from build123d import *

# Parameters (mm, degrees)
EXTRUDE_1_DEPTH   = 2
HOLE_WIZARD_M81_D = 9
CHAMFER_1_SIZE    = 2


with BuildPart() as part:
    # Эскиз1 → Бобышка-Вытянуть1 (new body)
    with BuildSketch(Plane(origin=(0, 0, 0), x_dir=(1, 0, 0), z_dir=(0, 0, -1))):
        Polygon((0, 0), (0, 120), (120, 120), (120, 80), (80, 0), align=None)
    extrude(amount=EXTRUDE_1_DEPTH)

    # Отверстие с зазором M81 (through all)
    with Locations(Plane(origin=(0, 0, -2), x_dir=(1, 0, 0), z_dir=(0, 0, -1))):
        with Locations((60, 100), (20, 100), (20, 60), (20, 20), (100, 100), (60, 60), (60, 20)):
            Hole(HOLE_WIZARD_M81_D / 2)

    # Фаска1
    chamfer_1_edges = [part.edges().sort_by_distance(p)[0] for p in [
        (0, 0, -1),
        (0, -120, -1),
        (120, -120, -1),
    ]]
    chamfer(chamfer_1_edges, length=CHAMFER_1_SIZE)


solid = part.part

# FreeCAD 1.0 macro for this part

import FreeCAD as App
import Part
import Sketcher

V = App.Vector


def edges_at(feature, points):
    """Names of the edges that pass closest to the given points."""
    edges = feature.Shape.Edges
    near = lambda p: min(range(len(edges)), key=lambda i: edges[i].distToShape(Part.Vertex(*p))[0])
    return sorted({f"Edge{near(p) + 1}" for p in points})

doc = App.newDocument("Part")
params = doc.addObject("Spreadsheet::Sheet", "Params")
for row, (alias, value) in enumerate([
    ("sketch1_width", "80 mm"),
    ("sketch1_width2", "120 mm"),
    ("sketch1_height", "40 mm"),
    ("pad1_length", "2 mm"),
    ("sketch2_diameter", "9 mm"),
    ("hole_diameter", "9 mm"),
    ("chamfer_size", "2 mm"),
], start=1):
    params.set(f"A{row}", alias)
    params.set(f"B{row}", "=" + value)
    params.setAlias(f"B{row}", alias)

body = doc.addObject("PartDesign::Body", "Body")

sketch1 = body.newObject("Sketcher::SketchObject", "Sketch")
sketch1.AttachmentSupport = (doc.getObject("XY_Plane"), [""])
sketch1.MapMode = "FlatFace"
sketch1.addGeometry([
    Part.LineSegment(V(0, -120, 0), V(0, 0, 0)),
    Part.LineSegment(V(0, 0, 0), V(80, 0, 0)),
    Part.LineSegment(V(80, 0, 0), V(120, -80, 0)),
    Part.LineSegment(V(120, -80, 0), V(120, -120, 0)),
    Part.LineSegment(V(120, -120, 0), V(0, -120, 0)),
], False)
sketch1.addConstraint([
    Sketcher.Constraint("Coincident", 0, 2, 1, 1),
    Sketcher.Constraint("Coincident", 1, 2, 2, 1),
    Sketcher.Constraint("Coincident", 2, 2, 3, 1),
    Sketcher.Constraint("Coincident", 3, 2, 4, 1),
    Sketcher.Constraint("Coincident", 4, 2, 0, 1),
    Sketcher.Constraint("Vertical", 0),
    Sketcher.Constraint("Horizontal", 1),
    Sketcher.Constraint("Vertical", 3),
    Sketcher.Constraint("Horizontal", 4),
    Sketcher.Constraint("Coincident", 0, 2, -1, 1),
    Sketcher.Constraint("Equal", 4, 0),
    Sketcher.Constraint("DistanceX", 1, 1, 1, 2, 80.0),
    Sketcher.Constraint("DistanceX", 4, 2, 4, 1, 120.0),
    Sketcher.Constraint("DistanceY", 3, 2, 3, 1, 40.0),
])
sketch1.setExpression("Constraints[11]", "Params.sketch1_width")
sketch1.setExpression("Constraints[12]", "Params.sketch1_width2")
sketch1.setExpression("Constraints[13]", "Params.sketch1_height")
pad1 = body.newObject("PartDesign::Pad", "Pad")
pad1.Profile = sketch1
pad1.setExpression("Length", "Params.pad1_length")
pad1.Reversed = True

sketch2 = body.newObject("Sketcher::SketchObject", "Sketch001")
sketch2.AttachmentSupport = (doc.getObject("XY_Plane"), [""])
sketch2.MapMode = "FlatFace"
sketch2.AttachmentOffset = App.Placement(V(0, 0, -2), App.Rotation())
sketch2.addGeometry([
    Part.Circle(V(60, -100, 0), V(0, 0, 1), 4.5),
    Part.Circle(V(20, -100, 0), V(0, 0, 1), 4.5),
    Part.Circle(V(20, -60, 0), V(0, 0, 1), 4.5),
    Part.Circle(V(20, -20, 0), V(0, 0, 1), 4.5),
    Part.Circle(V(100, -100, 0), V(0, 0, 1), 4.5),
    Part.Circle(V(60, -60, 0), V(0, 0, 1), 4.5),
    Part.Circle(V(60, -20, 0), V(0, 0, 1), 4.5),
], False)
sketch2.addConstraint([
    Sketcher.Constraint("Equal", 0, 1),
    Sketcher.Constraint("Equal", 1, 2),
    Sketcher.Constraint("Equal", 2, 3),
    Sketcher.Constraint("Equal", 3, 4),
    Sketcher.Constraint("Equal", 4, 5),
    Sketcher.Constraint("Equal", 5, 6),
    Sketcher.Constraint("Horizontal", 0, 3, 1, 3),
    Sketcher.Constraint("Horizontal", 1, 3, 4, 3),
    Sketcher.Constraint("Horizontal", 2, 3, 5, 3),
    Sketcher.Constraint("Horizontal", 3, 3, 6, 3),
    Sketcher.Constraint("Vertical", 1, 3, 2, 3),
    Sketcher.Constraint("Vertical", 2, 3, 3, 3),
    Sketcher.Constraint("Vertical", 0, 3, 5, 3),
    Sketcher.Constraint("Vertical", 5, 3, 6, 3),
    Sketcher.Constraint("Diameter", 0, 9.0),
    Sketcher.Constraint("DistanceX", -1, 1, 0, 3, 60.0),
    Sketcher.Constraint("DistanceY", 0, 3, -1, 1, 100.0),
    Sketcher.Constraint("DistanceX", -1, 1, 1, 3, 20.0),
    Sketcher.Constraint("DistanceY", 2, 3, -1, 1, 60.0),
    Sketcher.Constraint("DistanceY", 3, 3, -1, 1, 20.0),
    Sketcher.Constraint("DistanceX", -1, 1, 4, 3, 100.0),
])
sketch2.setExpression("Constraints[14]", "Params.sketch2_diameter")
doc.recompute()
hole = body.newObject("PartDesign::Hole", "Hole")
hole.Profile = sketch2
hole.ThreadType = "None"
hole.setExpression("Diameter", "Params.hole_diameter")
hole.DepthType = "ThroughAll"
hole.Reversed = True
doc.recompute()

chamfer = body.newObject("PartDesign::Chamfer", "Chamfer")
chamfer.Base = (hole, edges_at(hole, [(0, 0, -1), (0, -120, -1), (120, -120, -1)]))
chamfer.setExpression("Size", "Params.chamfer_size")

doc.recompute()
